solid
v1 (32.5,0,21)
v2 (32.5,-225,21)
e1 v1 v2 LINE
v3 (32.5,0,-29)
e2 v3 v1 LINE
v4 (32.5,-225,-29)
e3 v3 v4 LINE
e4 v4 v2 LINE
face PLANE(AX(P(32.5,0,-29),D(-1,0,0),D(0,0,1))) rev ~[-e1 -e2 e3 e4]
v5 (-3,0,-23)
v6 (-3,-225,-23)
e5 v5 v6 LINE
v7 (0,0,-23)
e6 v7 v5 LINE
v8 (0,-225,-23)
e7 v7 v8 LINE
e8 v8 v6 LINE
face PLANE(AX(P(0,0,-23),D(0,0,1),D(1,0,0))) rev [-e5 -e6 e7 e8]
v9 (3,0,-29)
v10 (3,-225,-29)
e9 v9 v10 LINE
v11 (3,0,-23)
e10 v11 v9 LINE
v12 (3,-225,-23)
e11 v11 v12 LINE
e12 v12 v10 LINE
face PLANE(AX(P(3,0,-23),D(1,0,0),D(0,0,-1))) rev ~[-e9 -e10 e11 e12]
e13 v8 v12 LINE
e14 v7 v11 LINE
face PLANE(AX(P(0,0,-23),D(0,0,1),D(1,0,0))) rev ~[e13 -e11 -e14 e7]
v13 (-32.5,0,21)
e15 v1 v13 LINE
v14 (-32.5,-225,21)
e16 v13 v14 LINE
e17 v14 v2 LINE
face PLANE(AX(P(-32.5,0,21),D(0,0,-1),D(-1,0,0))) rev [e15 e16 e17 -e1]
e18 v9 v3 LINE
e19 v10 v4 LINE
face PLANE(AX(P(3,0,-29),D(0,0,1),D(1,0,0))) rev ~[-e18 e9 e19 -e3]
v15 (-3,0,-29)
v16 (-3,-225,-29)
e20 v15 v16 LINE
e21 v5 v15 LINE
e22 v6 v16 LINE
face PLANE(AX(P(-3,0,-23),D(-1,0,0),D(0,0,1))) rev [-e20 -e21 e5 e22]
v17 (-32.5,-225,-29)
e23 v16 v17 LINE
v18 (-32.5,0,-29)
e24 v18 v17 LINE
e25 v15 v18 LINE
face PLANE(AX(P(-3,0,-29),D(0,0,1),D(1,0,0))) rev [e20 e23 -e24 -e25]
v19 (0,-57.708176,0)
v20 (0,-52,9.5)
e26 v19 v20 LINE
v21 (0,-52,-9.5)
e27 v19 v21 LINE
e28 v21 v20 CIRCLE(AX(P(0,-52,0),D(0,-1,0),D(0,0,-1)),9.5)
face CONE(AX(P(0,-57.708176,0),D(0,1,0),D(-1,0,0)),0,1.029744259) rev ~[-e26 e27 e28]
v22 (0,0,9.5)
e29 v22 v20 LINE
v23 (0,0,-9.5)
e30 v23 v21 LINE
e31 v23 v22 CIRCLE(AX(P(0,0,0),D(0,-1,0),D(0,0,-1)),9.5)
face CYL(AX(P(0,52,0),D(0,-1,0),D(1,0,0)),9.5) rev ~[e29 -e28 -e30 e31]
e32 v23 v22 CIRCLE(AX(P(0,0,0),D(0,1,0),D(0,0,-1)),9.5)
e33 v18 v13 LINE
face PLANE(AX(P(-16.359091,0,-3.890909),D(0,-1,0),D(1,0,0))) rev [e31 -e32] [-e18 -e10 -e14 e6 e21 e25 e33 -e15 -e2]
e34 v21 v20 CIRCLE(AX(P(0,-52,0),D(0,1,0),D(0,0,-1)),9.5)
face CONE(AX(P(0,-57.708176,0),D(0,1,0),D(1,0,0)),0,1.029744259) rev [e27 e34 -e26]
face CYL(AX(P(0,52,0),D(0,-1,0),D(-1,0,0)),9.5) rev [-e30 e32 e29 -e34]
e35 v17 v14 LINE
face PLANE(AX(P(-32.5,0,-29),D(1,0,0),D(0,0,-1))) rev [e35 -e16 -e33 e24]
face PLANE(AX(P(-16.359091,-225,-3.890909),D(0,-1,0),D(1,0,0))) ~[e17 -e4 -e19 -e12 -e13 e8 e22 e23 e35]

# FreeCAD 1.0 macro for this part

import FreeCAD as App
import Part
import Sketcher

doc = App.newDocument("Part")
params = doc.addObject("Spreadsheet::Sheet", "Params")
for row, (alias, value) in enumerate([
    ("sketch1_width", "3 mm"),
    ("sketch1_height", "44 mm"),
    ("sketch1_height2", "6 mm"),
    ("sketch1_width2", "32.5 mm"),
    ("pad1_length", "225 mm"),
    ("sketch2_diameter", "19 mm"),
    ("hole_diameter", "19 mm"),
    ("hole_depth", "52 mm"),
], start=1):
    params.set(f"A{row}", alias)
    params.set(f"B{row}", "=" + value)
    params.setAlias(f"B{row}", alias)

body = doc.addObject("PartDesign::Body", "Body")

# Sketch on XZ plane
sketch1 = body.newObject("Sketcher::SketchObject", "Sketch")
sketch1.AttachmentSupport = (doc.getObject("XZ_Plane"), [""])
sketch1.MapMode = "FlatFace"
sketch1.addGeometry([
    Part.LineSegment(App.Vector(32.5, 21, 0), App.Vector(0, 21, 0)),  # 0
    Part.LineSegment(App.Vector(0, 21, 0), App.Vector(0, -23, 0)),  # 1
    Part.LineSegment(App.Vector(0, -23, 0), App.Vector(3, -23, 0)),  # 2
    Part.LineSegment(App.Vector(3, -23, 0), App.Vector(3, -29, 0)),  # 3
    Part.LineSegment(App.Vector(3, -29, 0), App.Vector(32.5, -29, 0)),  # 4
    Part.LineSegment(App.Vector(32.5, -29, 0), App.Vector(32.5, 21, 0)),  # 5
], False)
sketch1.addConstraint([
    Sketcher.Constraint("Coincident", 0, 2, 1, 1),
    Sketcher.Constraint("Coincident", 1, 2, 2, 1),
    Sketcher.Constraint("Coincident", 2, 2, 3, 1),
    Sketcher.Constraint("Coincident", 3, 2, 4, 1),
    Sketcher.Constraint("Coincident", 4, 2, 5, 1),
    Sketcher.Constraint("Coincident", 5, 2, 0, 1),
    Sketcher.Constraint("Horizontal", 0),
    Sketcher.Constraint("Vertical", 1),
    Sketcher.Constraint("Horizontal", 2),
    Sketcher.Constraint("Vertical", 3),
    Sketcher.Constraint("Horizontal", 4),
    Sketcher.Constraint("Vertical", 5),
    Sketcher.Constraint("PointOnObject", 0, 2, -2),
    Sketcher.Constraint("DistanceX", 2, 1, 2, 2, 3.0),
    Sketcher.Constraint("DistanceY", 1, 2, 1, 1, 44.0),
    Sketcher.Constraint("DistanceY", 3, 2, 3, 1, 6.0),
    Sketcher.Constraint("DistanceX", 0, 2, 0, 1, 32.5),
    Sketcher.Constraint("DistanceY", -1, 1, 0, 2, 21.0),
])
sketch1.setExpression("Constraints[13]", "Params.sketch1_width")
sketch1.setExpression("Constraints[14]", "Params.sketch1_height")
sketch1.setExpression("Constraints[15]", "Params.sketch1_height2")
sketch1.setExpression("Constraints[16]", "Params.sketch1_width2")
pad1 = body.newObject("PartDesign::Pad", "Pad")
pad1.Profile = sketch1
pad1.setExpression("Length", "Params.pad1_length")

# Sketch on XZ plane
sketch2 = body.newObject("Sketcher::SketchObject", "Sketch001")
sketch2.AttachmentSupport = (doc.getObject("XZ_Plane"), [""])
sketch2.MapMode = "FlatFace"
sketch2.addGeometry(Part.Circle(App.Vector(0, 0, 0), App.Vector(0, 0, 1), 9.5), False)
sketch2.addConstraint([
    Sketcher.Constraint("Coincident", 0, 3, -1, 1),
    Sketcher.Constraint("Diameter", 0, 19.0),
])
sketch2.setExpression("Constraints[1]", "Params.sketch2_diameter")
doc.recompute()
hole = body.newObject("PartDesign::Hole", "Hole")
hole.Profile = sketch2
hole.ThreadType = "None"
hole.setExpression("Diameter", "Params.hole_diameter")
hole.DepthType = "Dimension"
hole.setExpression("Depth", "Params.hole_depth")
hole.DrillPoint = "Angled"
hole.DrillPointAngle = 118
hole.Reversed = True
body2 = doc.addObject("PartDesign::Body", "Body001")
doc.recompute()

body2.BaseFeature = body
doc.recompute()

mirroring = doc.addObject("Part::Mirroring", "Mirroring")
mirroring.Source = body
mirroring.Base = App.Vector(0, -122.506985, -1.117663)
mirroring.Normal = App.Vector(-1, 0, 0)
body3 = doc.addObject("PartDesign::Body", "Body002")
body3.BaseFeature = mirroring
boolean = body2.newObject("PartDesign::Boolean", "Boolean")
boolean.Type = "Fuse"
boolean.addObjects([body3])
doc.recompute()
mirroring.Visibility = False

doc.recompute()
